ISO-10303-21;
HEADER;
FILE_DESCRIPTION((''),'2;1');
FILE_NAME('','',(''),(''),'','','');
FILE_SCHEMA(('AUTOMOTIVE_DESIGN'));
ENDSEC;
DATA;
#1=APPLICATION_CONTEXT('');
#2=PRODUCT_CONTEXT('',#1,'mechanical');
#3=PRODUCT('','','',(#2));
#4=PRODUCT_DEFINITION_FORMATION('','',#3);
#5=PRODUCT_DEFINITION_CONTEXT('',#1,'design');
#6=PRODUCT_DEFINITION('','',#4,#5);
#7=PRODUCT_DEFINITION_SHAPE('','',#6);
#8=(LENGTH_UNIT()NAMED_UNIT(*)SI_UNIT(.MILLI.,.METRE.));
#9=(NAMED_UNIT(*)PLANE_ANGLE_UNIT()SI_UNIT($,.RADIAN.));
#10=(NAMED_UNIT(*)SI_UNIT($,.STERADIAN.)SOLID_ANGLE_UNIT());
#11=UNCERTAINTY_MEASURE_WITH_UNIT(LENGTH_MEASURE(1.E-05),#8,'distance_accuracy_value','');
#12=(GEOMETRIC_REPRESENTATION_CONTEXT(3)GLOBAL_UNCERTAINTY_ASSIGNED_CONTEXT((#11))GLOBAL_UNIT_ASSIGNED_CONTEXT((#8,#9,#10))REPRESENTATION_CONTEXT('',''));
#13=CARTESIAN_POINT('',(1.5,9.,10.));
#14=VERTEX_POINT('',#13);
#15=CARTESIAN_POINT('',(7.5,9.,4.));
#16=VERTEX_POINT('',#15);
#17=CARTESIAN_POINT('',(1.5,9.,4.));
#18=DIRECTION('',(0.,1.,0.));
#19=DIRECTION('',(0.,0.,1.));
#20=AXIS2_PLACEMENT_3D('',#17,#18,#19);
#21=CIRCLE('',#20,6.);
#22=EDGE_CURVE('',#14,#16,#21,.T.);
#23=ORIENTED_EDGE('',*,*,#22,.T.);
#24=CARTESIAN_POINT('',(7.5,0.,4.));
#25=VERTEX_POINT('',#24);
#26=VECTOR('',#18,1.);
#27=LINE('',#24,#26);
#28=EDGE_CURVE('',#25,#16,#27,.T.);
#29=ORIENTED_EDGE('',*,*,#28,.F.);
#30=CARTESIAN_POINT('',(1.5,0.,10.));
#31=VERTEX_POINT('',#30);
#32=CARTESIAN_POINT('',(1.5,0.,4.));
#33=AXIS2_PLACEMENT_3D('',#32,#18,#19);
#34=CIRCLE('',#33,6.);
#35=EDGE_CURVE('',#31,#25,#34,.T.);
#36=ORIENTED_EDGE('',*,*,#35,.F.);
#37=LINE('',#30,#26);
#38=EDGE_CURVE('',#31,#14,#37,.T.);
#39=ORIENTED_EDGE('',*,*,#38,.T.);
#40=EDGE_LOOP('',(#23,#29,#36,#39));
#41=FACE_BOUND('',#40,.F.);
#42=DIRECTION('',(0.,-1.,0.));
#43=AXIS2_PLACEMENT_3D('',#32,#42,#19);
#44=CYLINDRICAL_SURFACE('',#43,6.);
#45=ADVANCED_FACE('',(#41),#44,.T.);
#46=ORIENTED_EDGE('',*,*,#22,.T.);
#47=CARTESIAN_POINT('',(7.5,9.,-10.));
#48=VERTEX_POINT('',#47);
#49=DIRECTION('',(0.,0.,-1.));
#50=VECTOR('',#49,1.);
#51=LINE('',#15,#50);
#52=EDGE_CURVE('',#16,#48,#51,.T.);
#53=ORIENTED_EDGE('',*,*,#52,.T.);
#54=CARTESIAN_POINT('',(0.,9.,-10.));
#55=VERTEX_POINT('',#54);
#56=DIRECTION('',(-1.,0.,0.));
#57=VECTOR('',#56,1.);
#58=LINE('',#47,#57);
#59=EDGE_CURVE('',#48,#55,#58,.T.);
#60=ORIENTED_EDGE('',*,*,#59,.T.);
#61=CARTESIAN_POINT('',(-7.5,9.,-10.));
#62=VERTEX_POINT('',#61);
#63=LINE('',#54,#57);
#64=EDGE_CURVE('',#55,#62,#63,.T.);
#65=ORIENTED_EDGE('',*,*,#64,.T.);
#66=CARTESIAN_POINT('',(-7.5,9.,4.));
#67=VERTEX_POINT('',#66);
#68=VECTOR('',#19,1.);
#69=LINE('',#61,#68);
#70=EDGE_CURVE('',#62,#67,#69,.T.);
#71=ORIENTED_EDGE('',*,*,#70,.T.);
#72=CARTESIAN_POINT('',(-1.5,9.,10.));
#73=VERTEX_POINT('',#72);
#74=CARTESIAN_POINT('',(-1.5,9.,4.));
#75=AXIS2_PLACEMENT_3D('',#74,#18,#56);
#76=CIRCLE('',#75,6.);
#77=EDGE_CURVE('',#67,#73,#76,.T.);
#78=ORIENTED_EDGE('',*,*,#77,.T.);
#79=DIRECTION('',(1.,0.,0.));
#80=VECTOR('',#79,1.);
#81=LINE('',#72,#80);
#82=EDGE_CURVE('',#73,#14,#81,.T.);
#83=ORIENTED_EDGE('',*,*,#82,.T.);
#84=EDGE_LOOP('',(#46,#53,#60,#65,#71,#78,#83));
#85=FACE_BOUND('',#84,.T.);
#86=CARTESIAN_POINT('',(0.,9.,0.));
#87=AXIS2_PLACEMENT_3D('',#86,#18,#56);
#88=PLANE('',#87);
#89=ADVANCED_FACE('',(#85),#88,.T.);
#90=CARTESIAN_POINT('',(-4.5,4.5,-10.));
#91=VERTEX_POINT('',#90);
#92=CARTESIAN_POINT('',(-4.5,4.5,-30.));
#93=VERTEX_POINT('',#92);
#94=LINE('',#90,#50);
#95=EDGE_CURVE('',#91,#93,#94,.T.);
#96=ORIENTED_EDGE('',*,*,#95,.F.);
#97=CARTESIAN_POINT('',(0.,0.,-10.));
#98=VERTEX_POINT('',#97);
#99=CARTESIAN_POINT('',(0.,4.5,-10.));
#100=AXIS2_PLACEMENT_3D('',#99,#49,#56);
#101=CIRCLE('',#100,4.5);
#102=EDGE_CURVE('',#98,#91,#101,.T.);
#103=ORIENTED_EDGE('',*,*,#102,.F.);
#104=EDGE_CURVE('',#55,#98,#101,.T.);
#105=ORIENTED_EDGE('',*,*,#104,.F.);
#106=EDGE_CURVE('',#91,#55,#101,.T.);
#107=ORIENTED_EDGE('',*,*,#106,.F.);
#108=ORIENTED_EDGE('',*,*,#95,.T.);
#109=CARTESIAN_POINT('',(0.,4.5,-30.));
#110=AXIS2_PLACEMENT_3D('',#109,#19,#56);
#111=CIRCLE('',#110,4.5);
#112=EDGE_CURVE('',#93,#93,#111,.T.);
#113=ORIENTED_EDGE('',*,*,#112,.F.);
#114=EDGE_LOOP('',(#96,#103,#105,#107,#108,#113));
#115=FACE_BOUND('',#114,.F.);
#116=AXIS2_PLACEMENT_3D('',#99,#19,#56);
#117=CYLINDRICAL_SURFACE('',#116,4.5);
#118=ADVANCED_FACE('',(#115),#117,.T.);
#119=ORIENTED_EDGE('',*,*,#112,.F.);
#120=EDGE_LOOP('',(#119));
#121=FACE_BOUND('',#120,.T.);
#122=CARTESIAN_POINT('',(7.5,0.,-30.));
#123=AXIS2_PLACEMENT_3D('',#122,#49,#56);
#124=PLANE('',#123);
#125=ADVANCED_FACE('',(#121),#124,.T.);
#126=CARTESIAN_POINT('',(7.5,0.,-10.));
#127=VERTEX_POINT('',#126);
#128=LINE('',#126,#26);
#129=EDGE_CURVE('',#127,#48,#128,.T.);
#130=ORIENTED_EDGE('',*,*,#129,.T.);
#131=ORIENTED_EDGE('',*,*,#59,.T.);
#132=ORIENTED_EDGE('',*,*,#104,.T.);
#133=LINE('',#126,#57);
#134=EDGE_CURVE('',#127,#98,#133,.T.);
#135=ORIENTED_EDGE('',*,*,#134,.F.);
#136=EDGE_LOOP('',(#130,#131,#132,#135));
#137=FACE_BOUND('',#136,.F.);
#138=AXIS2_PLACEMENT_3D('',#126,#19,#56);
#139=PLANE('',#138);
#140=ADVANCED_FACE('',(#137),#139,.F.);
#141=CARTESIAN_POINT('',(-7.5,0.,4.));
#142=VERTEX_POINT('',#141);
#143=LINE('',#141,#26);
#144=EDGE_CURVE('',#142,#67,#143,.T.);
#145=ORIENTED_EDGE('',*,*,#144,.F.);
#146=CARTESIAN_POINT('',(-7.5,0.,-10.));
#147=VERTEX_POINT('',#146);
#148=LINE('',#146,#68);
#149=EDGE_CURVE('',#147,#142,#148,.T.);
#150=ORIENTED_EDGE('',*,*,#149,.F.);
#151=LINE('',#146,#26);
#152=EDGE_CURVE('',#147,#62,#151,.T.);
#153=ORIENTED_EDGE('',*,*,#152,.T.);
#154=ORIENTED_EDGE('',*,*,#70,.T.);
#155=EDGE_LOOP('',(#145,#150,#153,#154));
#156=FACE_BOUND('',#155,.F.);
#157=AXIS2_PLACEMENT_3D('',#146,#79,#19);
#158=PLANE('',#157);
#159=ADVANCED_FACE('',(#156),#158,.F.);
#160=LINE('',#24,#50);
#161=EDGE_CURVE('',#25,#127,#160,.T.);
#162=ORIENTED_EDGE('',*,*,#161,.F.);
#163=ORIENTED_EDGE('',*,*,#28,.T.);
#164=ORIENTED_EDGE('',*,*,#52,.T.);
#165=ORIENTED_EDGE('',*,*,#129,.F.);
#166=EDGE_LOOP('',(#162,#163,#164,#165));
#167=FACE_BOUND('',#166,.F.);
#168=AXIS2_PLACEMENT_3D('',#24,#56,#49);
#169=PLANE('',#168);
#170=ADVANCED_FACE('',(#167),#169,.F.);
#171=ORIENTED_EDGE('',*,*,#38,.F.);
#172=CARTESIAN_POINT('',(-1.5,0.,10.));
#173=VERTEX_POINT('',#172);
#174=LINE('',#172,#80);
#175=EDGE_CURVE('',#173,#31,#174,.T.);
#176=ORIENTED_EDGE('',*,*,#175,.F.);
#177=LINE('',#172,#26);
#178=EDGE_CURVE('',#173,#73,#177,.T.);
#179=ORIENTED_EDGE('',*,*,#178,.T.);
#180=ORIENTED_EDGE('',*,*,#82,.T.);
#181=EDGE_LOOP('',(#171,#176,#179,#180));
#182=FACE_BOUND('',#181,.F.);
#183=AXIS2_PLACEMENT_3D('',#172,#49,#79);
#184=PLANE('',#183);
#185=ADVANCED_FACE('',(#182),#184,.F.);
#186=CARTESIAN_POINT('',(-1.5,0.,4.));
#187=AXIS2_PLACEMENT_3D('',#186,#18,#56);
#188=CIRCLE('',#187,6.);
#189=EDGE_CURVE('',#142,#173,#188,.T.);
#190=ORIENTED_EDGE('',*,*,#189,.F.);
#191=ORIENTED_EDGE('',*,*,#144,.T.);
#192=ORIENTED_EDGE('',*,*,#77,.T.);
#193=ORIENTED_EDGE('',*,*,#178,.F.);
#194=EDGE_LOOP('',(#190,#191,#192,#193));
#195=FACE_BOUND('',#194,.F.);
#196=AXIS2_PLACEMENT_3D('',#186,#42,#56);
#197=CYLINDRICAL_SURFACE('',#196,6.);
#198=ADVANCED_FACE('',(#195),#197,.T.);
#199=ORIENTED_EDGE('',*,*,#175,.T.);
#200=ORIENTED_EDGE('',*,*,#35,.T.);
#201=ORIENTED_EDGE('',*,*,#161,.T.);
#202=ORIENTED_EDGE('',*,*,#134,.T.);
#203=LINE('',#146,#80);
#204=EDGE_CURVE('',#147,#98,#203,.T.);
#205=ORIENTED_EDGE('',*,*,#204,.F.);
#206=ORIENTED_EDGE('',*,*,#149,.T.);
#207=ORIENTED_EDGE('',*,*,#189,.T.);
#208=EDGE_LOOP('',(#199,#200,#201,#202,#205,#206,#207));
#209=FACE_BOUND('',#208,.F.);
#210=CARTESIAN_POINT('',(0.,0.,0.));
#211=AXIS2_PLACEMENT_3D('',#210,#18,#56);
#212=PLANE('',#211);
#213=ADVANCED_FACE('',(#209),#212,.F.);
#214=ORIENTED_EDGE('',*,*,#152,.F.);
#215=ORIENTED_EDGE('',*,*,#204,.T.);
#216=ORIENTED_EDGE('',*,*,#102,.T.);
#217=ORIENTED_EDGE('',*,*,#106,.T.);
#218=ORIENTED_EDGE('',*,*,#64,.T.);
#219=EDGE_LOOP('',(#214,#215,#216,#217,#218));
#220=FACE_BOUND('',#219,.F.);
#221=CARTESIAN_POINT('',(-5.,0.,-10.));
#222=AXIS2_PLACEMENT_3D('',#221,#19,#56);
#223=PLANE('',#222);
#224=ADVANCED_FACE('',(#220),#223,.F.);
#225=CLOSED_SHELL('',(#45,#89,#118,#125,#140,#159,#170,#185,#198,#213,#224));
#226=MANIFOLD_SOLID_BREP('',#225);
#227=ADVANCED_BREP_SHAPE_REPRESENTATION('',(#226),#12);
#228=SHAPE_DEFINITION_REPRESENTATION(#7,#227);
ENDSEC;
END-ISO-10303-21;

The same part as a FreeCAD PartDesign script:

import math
import FreeCAD as App
import Part
import Sketcher

V = App.Vector

doc = App.newDocument("Part")
body = doc.addObject("PartDesign::Body", "Body")

sketch1 = body.newObject("Sketcher::SketchObject", "Sketch")
sketch1.AttachmentSupport = (doc.getObject("XZ_Plane"), [""])
sketch1.MapMode = "FlatFace"
sketch1.addGeometry(Part.LineSegment(V(7.5, 4, 0), V(7.5, -10, 0)), False)
sketch1.addGeometry(Part.LineSegment(V(7.5, -10, 0), V(-7.5, -10, 0)), False)
sketch1.addGeometry(Part.LineSegment(V(-7.5, -10, 0), V(-7.5, 4, 0)), False)
sketch1.addGeometry(Part.ArcOfCircle(Part.Circle(V(-1.5, 4, 0), V(0, 0, 1), 6), math.radians(90), math.radians(180)), False)
sketch1.addGeometry(Part.LineSegment(V(-1.5, 10, 0), V(1.5, 10, 0)), False)
sketch1.addGeometry(Part.ArcOfCircle(Part.Circle(V(1.5, 4, 0), V(0, 0, 1), 6), math.radians(0), math.radians(90)), False)
sketch1.addConstraint(Sketcher.Constraint("Coincident", 0, 2, 1, 1))
sketch1.addConstraint(Sketcher.Constraint("Coincident", 1, 2, 2, 1))
sketch1.addConstraint(Sketcher.Constraint("Tangent", 2, 2, 3, 2))
sketch1.addConstraint(Sketcher.Constraint("Tangent", 3, 1, 4, 1))
sketch1.addConstraint(Sketcher.Constraint("Tangent", 4, 2, 5, 2))
sketch1.addConstraint(Sketcher.Constraint("Tangent", 5, 1, 0, 1))
sketch1.addConstraint(Sketcher.Constraint("Vertical", 0))
sketch1.addConstraint(Sketcher.Constraint("Horizontal", 1))
sketch1.addConstraint(Sketcher.Constraint("Vertical", 2))
sketch1.addConstraint(Sketcher.Constraint("Horizontal", 4))
sketch1.addConstraint(Sketcher.Constraint("Equal", 3, 5))
sketch1.addConstraint(Sketcher.Constraint("Radius", 3, 6.0))
sketch1.addConstraint(Sketcher.Constraint("DistanceX", 1, 2, 1, 1, 15.0))
sketch1.addConstraint(Sketcher.Constraint("DistanceY", 1, 2, 3, 1, 20.0))
sketch1.addConstraint(Sketcher.Constraint("DistanceY", -1, 1, 3, 3, 4.0))
sketch1.addConstraint(Sketcher.Constraint("DistanceX", 3, 3, -1, 1, 1.5))
pad1 = body.newObject("PartDesign::Pad", "Pad")
pad1.Profile = sketch1
pad1.Length = 9
pad1.Reversed = True

sketch2 = body.newObject("Sketcher::SketchObject", "Sketch001")
sketch2.AttachmentSupport = (doc.getObject("XY_Plane"), [""])
sketch2.MapMode = "FlatFace"
sketch2.AttachmentOffset = App.Placement(V(0, 0, -10), App.Rotation())
sketch2.addGeometry(Part.Circle(V(0, 4.5, 0), V(0, 0, 1), 4.5), False)
sketch2.addConstraint(Sketcher.Constraint("PointOnObject", 0, 3, -2))
sketch2.addConstraint(Sketcher.Constraint("Diameter", 0, 9.0))
sketch2.addConstraint(Sketcher.Constraint("DistanceY", -1, 1, 0, 3, 4.5))
pad2 = body.newObject("PartDesign::Pad", "Pad001")
pad2.Profile = sketch2
pad2.Length = 20
pad2.Reversed = True

doc.recompute()
